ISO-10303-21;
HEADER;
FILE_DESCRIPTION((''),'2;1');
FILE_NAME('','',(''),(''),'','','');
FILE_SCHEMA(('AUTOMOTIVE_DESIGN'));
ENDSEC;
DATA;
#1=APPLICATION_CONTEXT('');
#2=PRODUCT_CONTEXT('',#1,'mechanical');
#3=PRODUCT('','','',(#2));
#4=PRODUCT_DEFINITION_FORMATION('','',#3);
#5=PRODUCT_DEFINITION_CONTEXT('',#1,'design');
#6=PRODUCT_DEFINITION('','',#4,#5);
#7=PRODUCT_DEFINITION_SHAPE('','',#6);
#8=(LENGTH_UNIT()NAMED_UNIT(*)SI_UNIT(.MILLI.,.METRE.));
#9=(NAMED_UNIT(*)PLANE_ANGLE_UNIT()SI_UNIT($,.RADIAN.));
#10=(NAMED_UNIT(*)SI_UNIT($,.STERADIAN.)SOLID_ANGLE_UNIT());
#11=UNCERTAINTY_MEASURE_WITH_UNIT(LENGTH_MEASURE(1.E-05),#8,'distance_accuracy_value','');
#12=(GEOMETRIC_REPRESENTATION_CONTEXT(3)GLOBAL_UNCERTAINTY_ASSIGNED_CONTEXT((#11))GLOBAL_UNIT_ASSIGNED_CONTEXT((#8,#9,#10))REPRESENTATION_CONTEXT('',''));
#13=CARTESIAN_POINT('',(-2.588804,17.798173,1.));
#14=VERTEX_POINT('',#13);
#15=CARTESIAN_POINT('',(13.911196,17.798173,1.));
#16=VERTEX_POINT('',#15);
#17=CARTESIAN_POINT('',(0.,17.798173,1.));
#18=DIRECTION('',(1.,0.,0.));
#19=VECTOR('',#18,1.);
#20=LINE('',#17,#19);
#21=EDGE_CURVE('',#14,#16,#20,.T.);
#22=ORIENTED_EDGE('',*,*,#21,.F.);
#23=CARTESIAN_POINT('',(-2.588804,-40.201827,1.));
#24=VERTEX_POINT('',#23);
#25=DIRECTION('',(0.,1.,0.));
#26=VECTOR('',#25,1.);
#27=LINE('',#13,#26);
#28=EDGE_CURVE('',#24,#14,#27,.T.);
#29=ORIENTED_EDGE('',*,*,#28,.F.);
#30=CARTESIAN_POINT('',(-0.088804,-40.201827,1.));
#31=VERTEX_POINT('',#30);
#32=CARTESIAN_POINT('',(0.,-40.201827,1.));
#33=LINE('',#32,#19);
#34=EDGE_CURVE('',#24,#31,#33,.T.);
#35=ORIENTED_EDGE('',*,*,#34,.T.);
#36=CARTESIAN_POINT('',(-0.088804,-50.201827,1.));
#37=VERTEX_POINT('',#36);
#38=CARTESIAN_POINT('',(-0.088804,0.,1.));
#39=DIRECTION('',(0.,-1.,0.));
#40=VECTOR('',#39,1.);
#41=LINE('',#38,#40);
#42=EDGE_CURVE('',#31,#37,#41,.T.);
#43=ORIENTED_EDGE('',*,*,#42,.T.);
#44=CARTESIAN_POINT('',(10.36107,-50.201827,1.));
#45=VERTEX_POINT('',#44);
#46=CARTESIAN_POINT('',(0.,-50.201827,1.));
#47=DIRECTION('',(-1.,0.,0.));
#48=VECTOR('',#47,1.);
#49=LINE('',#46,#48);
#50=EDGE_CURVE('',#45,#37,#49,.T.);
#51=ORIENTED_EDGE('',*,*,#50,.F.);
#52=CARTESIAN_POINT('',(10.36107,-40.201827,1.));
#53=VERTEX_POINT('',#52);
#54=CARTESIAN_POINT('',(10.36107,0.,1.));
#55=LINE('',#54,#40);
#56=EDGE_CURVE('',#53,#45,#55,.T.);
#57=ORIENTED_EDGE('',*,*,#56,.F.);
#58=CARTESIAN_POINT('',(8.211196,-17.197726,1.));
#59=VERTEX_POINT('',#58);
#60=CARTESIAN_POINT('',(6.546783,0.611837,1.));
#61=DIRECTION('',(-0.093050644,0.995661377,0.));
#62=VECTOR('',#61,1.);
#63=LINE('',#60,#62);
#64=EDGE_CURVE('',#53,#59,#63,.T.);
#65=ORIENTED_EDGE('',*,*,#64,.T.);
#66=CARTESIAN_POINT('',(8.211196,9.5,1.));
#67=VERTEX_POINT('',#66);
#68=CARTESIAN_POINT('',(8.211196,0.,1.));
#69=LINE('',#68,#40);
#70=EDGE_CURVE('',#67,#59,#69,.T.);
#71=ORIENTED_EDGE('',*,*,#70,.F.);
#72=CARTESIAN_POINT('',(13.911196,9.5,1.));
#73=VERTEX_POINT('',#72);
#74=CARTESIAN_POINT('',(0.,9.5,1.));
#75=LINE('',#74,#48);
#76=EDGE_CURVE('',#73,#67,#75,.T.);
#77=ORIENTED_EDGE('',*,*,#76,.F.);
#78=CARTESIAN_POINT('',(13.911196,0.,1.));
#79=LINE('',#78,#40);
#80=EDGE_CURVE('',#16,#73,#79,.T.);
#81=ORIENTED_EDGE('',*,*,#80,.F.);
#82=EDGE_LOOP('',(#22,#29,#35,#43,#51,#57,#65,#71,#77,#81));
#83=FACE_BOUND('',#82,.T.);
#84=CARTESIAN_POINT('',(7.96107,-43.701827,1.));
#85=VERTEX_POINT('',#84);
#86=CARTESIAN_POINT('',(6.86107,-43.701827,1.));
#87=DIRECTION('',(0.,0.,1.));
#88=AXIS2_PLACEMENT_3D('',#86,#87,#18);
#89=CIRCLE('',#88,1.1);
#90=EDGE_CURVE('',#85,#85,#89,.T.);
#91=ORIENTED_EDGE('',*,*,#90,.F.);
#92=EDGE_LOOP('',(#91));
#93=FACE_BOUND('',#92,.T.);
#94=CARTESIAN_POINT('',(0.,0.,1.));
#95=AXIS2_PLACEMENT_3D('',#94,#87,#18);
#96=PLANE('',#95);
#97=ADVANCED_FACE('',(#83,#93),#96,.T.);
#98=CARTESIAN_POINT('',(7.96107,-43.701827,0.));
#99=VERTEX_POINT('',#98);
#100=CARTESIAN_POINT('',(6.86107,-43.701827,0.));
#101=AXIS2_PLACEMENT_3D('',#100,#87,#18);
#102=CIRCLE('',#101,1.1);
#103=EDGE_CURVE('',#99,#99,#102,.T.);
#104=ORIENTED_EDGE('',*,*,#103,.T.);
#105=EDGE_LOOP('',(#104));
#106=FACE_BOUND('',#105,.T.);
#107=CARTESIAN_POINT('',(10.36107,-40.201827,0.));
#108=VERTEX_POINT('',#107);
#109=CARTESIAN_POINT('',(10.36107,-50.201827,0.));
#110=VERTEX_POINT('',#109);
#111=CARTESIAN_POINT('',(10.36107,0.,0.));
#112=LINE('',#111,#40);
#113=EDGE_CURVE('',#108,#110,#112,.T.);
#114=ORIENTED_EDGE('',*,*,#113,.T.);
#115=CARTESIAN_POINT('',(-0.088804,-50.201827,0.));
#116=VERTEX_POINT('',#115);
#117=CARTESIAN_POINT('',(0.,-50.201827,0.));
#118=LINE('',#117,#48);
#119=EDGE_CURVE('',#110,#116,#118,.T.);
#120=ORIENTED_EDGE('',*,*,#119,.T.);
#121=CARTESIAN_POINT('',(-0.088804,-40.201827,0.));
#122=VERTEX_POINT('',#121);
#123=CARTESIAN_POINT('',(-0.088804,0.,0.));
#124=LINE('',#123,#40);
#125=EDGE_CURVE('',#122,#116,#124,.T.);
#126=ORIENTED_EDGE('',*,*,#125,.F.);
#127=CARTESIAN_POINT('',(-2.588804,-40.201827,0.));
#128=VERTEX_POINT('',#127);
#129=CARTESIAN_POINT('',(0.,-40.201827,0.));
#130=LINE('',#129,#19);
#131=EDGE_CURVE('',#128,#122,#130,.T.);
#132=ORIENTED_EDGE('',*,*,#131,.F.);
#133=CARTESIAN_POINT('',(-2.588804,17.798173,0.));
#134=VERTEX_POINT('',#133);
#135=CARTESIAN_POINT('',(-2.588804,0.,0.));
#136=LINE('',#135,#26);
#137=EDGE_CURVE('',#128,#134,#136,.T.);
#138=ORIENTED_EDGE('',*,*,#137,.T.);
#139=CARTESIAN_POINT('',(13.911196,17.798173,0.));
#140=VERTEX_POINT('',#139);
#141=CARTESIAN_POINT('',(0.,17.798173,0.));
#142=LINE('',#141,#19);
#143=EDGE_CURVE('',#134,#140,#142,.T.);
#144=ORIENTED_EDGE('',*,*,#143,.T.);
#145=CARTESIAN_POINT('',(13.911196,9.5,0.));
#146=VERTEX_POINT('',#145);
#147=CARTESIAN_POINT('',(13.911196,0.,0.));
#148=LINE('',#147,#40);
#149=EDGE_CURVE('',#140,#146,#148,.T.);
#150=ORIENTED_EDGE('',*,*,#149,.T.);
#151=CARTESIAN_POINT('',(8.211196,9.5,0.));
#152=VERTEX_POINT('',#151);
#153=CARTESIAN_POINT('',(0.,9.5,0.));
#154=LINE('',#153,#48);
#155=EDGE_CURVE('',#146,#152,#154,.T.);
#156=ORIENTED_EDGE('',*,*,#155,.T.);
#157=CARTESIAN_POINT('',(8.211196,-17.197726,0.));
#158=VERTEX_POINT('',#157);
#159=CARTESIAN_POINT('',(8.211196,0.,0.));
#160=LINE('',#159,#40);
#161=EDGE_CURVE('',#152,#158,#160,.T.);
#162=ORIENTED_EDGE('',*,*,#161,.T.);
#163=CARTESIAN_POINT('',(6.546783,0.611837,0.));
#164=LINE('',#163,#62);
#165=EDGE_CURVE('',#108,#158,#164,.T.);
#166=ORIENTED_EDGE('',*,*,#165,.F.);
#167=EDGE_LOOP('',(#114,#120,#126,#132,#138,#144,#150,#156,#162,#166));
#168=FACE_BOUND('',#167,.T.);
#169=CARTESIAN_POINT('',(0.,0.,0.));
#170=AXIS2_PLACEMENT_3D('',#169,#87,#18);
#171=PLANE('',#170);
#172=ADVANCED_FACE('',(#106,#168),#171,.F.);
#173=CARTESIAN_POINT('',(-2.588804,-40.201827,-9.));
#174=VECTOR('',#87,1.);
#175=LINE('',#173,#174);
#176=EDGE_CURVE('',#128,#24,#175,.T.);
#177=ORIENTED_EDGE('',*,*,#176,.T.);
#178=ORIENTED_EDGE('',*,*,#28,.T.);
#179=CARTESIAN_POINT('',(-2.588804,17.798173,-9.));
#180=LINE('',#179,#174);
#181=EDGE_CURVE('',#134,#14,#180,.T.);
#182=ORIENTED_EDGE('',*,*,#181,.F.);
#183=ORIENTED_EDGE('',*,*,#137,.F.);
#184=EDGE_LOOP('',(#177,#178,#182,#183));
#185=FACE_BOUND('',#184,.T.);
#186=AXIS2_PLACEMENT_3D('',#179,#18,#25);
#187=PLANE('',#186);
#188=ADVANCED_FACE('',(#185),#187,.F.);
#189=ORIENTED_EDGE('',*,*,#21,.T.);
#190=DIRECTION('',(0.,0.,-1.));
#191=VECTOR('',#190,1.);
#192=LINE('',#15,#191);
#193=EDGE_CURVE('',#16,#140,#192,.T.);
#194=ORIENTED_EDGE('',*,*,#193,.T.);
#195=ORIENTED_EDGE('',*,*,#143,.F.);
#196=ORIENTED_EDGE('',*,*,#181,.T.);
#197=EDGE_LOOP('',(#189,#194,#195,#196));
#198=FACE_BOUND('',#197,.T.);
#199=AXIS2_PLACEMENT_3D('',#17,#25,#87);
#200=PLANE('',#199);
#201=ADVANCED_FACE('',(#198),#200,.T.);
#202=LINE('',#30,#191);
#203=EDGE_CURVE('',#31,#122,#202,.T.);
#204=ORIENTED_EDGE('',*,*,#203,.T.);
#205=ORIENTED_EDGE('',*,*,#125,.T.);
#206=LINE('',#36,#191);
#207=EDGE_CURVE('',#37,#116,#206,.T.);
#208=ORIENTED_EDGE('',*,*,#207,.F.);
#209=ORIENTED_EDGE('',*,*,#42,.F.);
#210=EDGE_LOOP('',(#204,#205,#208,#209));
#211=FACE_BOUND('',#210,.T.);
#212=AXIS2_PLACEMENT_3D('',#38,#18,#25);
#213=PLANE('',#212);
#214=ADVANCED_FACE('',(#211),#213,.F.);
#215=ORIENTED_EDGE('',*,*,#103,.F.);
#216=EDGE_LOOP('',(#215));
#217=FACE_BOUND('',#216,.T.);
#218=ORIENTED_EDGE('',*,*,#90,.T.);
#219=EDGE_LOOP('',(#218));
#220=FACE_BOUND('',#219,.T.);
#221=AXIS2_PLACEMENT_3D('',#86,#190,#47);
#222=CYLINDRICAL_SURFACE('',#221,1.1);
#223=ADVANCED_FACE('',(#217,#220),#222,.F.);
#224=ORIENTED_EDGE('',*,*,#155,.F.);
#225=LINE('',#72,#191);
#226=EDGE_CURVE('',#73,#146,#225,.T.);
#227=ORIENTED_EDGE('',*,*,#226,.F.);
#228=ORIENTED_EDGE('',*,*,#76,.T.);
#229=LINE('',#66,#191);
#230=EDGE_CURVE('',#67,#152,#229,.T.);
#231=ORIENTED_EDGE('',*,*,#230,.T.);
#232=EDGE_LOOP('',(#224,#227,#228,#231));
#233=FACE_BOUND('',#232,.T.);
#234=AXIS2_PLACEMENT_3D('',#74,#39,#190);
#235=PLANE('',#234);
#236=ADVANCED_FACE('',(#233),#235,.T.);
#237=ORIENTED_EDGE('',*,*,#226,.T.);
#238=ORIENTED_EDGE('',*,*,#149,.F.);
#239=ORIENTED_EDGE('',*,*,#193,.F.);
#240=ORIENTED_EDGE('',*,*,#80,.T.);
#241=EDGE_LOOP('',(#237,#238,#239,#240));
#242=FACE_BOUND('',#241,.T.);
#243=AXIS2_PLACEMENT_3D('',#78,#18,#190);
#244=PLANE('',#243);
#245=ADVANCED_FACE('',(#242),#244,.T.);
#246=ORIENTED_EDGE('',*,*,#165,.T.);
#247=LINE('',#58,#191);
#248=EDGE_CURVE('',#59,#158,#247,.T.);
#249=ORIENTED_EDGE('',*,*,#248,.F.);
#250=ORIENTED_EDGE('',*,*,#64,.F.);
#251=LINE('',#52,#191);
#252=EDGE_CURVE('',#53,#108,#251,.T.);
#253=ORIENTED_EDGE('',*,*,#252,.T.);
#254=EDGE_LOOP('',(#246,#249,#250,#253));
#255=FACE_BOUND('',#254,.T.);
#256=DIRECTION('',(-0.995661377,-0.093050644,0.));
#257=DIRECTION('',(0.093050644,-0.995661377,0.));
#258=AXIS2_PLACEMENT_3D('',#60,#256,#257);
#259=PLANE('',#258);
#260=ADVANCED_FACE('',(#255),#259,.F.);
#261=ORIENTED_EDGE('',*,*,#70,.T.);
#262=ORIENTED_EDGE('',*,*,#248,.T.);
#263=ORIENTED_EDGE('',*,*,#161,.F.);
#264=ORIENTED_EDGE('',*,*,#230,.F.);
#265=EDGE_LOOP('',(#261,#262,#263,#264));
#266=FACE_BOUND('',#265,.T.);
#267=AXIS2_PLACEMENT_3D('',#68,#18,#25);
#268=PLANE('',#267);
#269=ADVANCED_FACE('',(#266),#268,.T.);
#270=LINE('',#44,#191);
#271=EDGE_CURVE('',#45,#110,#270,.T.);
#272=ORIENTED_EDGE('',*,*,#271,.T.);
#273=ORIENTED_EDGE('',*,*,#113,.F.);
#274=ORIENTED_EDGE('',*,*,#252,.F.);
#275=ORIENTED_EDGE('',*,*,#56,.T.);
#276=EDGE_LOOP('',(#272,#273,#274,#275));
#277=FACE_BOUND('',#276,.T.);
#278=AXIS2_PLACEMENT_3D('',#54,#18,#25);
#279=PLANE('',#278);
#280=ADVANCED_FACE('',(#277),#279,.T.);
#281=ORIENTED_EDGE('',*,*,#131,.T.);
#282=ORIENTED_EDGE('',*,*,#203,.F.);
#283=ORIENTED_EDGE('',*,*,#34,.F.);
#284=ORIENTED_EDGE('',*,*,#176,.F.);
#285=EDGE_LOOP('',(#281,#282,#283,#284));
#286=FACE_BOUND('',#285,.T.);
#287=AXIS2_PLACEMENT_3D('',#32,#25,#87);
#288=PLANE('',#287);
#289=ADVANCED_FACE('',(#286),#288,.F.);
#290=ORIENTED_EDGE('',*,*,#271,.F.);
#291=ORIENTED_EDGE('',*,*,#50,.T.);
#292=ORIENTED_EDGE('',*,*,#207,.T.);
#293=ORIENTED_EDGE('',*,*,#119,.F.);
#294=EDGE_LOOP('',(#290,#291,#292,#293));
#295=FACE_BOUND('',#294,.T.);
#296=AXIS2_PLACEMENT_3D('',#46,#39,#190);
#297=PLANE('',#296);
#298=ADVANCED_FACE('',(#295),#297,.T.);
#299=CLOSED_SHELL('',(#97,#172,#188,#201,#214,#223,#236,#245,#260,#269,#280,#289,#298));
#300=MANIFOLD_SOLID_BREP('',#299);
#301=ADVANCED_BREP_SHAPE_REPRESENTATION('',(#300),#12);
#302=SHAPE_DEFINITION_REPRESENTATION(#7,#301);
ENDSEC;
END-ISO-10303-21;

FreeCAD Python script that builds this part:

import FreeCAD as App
import Part
import Sketcher

V = App.Vector
Q = App.Units.Quantity


def add_polygon(sketch, points):
    """Adds a closed chain of lines whose ends are joined by coincident constraints."""
    first, n = sketch.GeometryCount, len(points)
    for a, b in zip(points, points[1:] + points[:1]):
        sketch.addGeometry(Part.LineSegment(App.Vector(*a, 0), App.Vector(*b, 0)), False)
    for i in range(n):
        sketch.addConstraint(Sketcher.Constraint("Coincident", first + i, 2, first + (i + 1) % n, 1))

doc = App.newDocument("Part")
body = doc.addObject("PartDesign::Body", "Body")

# Sketch on XY plane
sketch1 = body.newObject("Sketcher::SketchObject", "Sketch")
sketch1.AttachmentSupport = (doc.getObject("XY_Plane"), [""])
sketch1.MapMode = "FlatFace"
add_polygon(sketch1, [(-6, -40), (10, -40), (8, -17), (8, 10), (14, 10), (14, 18), (-6, 18)])  # lines 0-6
sketch1.addConstraint(Sketcher.Constraint("Horizontal", 0))
sketch1.addConstraint(Sketcher.Constraint("Vertical", 2))
sketch1.addConstraint(Sketcher.Constraint("Horizontal", 3))
sketch1.addConstraint(Sketcher.Constraint("Vertical", 4))
sketch1.addConstraint(Sketcher.Constraint("Horizontal", 5))
sketch1.addConstraint(Sketcher.Constraint("Vertical", 6))
sketch1.addConstraint(Sketcher.Constraint("DistanceY", 6, 2, 6, 1, Q("58 mm")))
sketch1.addConstraint(Sketcher.Constraint("DistanceX", 3, 1, 3, 2, Q("5.7 mm")))
sketch1.addConstraint(Sketcher.Constraint("DistanceX", 5, 2, 5, 1, Q("19.5 mm")))
sketch1.addConstraint(Sketcher.Constraint("DistanceY", -1, 1, 2, 2, Q("9.5 mm")))
sketch1.addConstraint(Sketcher.Constraint("DistanceY", 0, 2, 1, 2, Q("23.004102 mm")))
sketch1.addConstraint(Sketcher.Constraint("DistanceX", 0, 1, 0, 2, Q("15.949874 mm")))
sketch1.addConstraint(Sketcher.Constraint("DistanceY", 2, 1, 2, 2, Q("26.697726 mm")))
sketch1.addConstraint(Sketcher.Constraint("DistanceX", -1, 1, 0, 2, Q("10.36107 mm")))
pad1 = body.newObject("PartDesign::Pad", "Pad")
pad1.Profile = sketch1
pad1.Length = 1

# Sketch on XY plane
sketch2 = body.newObject("Sketcher::SketchObject", "Sketch001")
sketch2.AttachmentSupport = (doc.getObject("XY_Plane"), [""])
sketch2.MapMode = "FlatFace"
add_polygon(sketch2, [(-5.6, -40.2), (-0.1, -40.2), (-0.1, -50.2), (10.4, -50.2), (10.4, -40.2), (8.2, -17.2), (8.2, 9.5), (13.9, 9.5), (13.9, 17.8), (-5.6, 17.8)])  # lines 0-9
sketch2.addGeometry(Part.Circle(V(6.9, -43.7, 0), V(0, 0, 1), 1.1), False)  # 10
sketch2.addConstraint(Sketcher.Constraint("Horizontal", 0))
sketch2.addConstraint(Sketcher.Constraint("Vertical", 1))
sketch2.addConstraint(Sketcher.Constraint("Horizontal", 2))
sketch2.addConstraint(Sketcher.Constraint("Vertical", 3))
sketch2.addConstraint(Sketcher.Constraint("Vertical", 5))
sketch2.addConstraint(Sketcher.Constraint("Horizontal", 6))
sketch2.addConstraint(Sketcher.Constraint("Vertical", 7))
sketch2.addConstraint(Sketcher.Constraint("Horizontal", 8))
sketch2.addConstraint(Sketcher.Constraint("Vertical", 9))
sketch2.addConstraint(Sketcher.Constraint("Horizontal", 0, 2, 3, 2))
sketch2.addConstraint(Sketcher.Constraint("Diameter", 10, Q("2.2 mm")))
sketch2.addConstraint(Sketcher.Constraint("DistanceY", 1, 2, 1, 1, Q("10 mm")))
sketch2.addConstraint(Sketcher.Constraint("DistanceY", 9, 2, 9, 1, Q("58 mm")))
sketch2.addConstraint(Sketcher.Constraint("DistanceX", 0, 1, 0, 2, Q("5.5 mm")))
sketch2.addConstraint(Sketcher.Constraint("DistanceX", 6, 1, 6, 2, Q("5.7 mm")))
sketch2.addConstraint(Sketcher.Constraint("DistanceX", 8, 2, 8, 1, Q("19.5 mm")))
sketch2.addConstraint(Sketcher.Constraint("DistanceY", -1, 1, 5, 2, Q("9.5 mm")))
sketch2.addConstraint(Sketcher.Constraint("DistanceY", 10, 3, 0, 2, Q("3.5 mm")))
sketch2.addConstraint(Sketcher.Constraint("DistanceX", 10, 3, 2, 2, Q("3.5 mm")))
sketch2.addConstraint(Sketcher.Constraint("DistanceY", 3, 2, 4, 2, Q("23.004102 mm")))
sketch2.addConstraint(Sketcher.Constraint("DistanceX", 2, 1, 2, 2, Q("10.449874 mm")))
sketch2.addConstraint(Sketcher.Constraint("DistanceY", 5, 1, 5, 2, Q("26.697726 mm")))
sketch2.addConstraint(Sketcher.Constraint("DistanceX", -1, 1, 10, 3, Q("6.86107 mm")))
pad2 = body.newObject("PartDesign::Pad", "Pad001")
pad2.Profile = sketch2
pad2.Length = 1

# Sketch on XY plane
sketch3 = body.newObject("Sketcher::SketchObject", "Sketch002")
sketch3.AttachmentSupport = (doc.getObject("XY_Plane"), [""])
sketch3.MapMode = "FlatFace"
sketch3.AttachmentOffset = App.Placement(V(0, 0, 1), App.Rotation())
add_polygon(sketch3, [(-5.6, 17.8), (-5.6, -40.2), (-2.6, -40.2), (-2.6, 17.8)])  # lines 0-3
sketch3.addConstraint(Sketcher.Constraint("Vertical", 0))
sketch3.addConstraint(Sketcher.Constraint("Horizontal", 1))
sketch3.addConstraint(Sketcher.Constraint("Vertical", 2))
sketch3.addConstraint(Sketcher.Constraint("Horizontal", 3))
sketch3.addConstraint(Sketcher.Constraint("DistanceX", 1, 1, 1, 2, Q("3 mm")))
sketch3.addConstraint(Sketcher.Constraint("DistanceY", 0, 2, 0, 1, Q("58 mm")))
sketch3.addConstraint(Sketcher.Constraint("DistanceX", 0, 2, -1, 1, Q("5.588804 mm")))
sketch3.addConstraint(Sketcher.Constraint("DistanceY", 0, 2, -1, 1, Q("40.201827 mm")))
pocket1 = body.newObject("PartDesign::Pocket", "Pocket")
pocket1.Profile = sketch3
pocket1.Length = 10

doc.recompute()
